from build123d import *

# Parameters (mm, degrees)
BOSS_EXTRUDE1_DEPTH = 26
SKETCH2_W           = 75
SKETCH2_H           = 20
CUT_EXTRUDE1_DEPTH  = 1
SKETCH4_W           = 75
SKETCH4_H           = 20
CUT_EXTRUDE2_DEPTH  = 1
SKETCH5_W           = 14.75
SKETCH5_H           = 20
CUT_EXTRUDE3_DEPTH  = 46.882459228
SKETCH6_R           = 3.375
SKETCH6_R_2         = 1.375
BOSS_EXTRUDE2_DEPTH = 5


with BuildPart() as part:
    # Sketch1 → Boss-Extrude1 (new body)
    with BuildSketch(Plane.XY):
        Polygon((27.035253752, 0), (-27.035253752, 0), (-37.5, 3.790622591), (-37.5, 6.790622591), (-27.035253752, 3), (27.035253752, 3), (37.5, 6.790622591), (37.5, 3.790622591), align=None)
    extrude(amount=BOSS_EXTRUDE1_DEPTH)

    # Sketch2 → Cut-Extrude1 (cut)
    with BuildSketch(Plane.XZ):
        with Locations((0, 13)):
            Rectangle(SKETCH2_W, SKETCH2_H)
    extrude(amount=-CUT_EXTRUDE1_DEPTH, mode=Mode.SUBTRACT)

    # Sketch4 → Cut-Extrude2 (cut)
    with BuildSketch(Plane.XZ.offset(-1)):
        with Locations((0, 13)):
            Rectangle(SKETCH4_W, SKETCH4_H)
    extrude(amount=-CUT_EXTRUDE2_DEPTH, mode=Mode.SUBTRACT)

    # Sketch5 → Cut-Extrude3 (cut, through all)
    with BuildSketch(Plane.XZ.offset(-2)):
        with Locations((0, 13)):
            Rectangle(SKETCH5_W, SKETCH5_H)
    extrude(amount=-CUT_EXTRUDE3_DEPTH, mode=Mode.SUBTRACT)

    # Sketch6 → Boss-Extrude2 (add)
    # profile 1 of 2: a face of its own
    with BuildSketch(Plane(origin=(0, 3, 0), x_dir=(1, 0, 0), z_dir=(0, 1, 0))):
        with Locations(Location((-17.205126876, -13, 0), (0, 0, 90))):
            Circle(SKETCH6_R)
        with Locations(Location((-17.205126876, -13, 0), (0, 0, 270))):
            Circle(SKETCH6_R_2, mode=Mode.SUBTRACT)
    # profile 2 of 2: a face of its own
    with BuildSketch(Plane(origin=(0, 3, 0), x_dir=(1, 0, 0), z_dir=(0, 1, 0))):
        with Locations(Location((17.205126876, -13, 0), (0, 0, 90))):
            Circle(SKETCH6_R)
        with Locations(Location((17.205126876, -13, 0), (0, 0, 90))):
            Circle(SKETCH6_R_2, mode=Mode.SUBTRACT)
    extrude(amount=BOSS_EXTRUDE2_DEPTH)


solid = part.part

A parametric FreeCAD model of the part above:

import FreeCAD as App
import Part
import Sketcher

V = App.Vector


def add_polygon(sketch, points):
    """Adds a closed chain of lines whose ends are joined by coincident constraints."""
    first, n = sketch.GeometryCount, len(points)
    for a, b in zip(points, points[1:] + points[:1]):
        sketch.addGeometry(Part.LineSegment(App.Vector(*a, 0), App.Vector(*b, 0)), False)
    for i in range(n):
        sketch.addConstraint(Sketcher.Constraint("Coincident", first + i, 2, first + (i + 1) % n, 1))

doc = App.newDocument("Part")
body = doc.addObject("PartDesign::Body", "Body")

sketch1 = body.newObject("Sketcher::SketchObject", "Sketch")
sketch1.AttachmentSupport = (doc.getObject("XY_Plane"), [""])
sketch1.MapMode = "FlatFace"
add_polygon(sketch1, [(-27.035254, 0), (27.035254, 0), (37.5, 3.790623), (37.5, 6.790623), (27.035254, 3), (-27.035254, 3), (-37.5, 6.790623), (-37.5, 3.790623)])
sketch1.addConstraint(Sketcher.Constraint("Horizontal", 0))
sketch1.addConstraint(Sketcher.Constraint("Vertical", 2))
sketch1.addConstraint(Sketcher.Constraint("Horizontal", 4))
sketch1.addConstraint(Sketcher.Constraint("Vertical", 6))
sketch1.addConstraint(Sketcher.Constraint("Symmetric", 0, 2, 7, 2, -1, 1))
sketch1.addConstraint(Sketcher.Constraint("Symmetric", 2, 2, 5, 2, -2))
sketch1.addConstraint(Sketcher.Constraint("Parallel", 1, 3))
sketch1.addConstraint(Sketcher.Constraint("Parallel", 5, 7))
sketch1.addConstraint(Sketcher.Constraint("Horizontal", 1, 2, 6, 2))
sketch1.addConstraint(Sketcher.Constraint("Vertical", 0, 2, 3, 2))
sketch1.addConstraint(Sketcher.Constraint("DistanceY", 2, 1, 2, 2, 3.0))
sketch1.addConstraint(Sketcher.Constraint("DistanceX", 5, 2, 2, 2, 75.0))
sketch1.addConstraint(Sketcher.Constraint("DistanceX", 0, 1, 0, 2, 54.070508))
sketch1.addConstraint(Sketcher.Constraint("Distance", 1, 11.130127))
pad1 = body.newObject("PartDesign::Pad", "Pad")
pad1.Profile = sketch1
pad1.Length = 26

sketch2 = body.newObject("Sketcher::SketchObject", "Sketch001")
sketch2.AttachmentSupport = (doc.getObject("XZ_Plane"), [""])
sketch2.MapMode = "FlatFace"
add_polygon(sketch2, [(-37.5, 23), (-37.5, 3), (37.5, 3), (37.5, 23)])
sketch2.addConstraint(Sketcher.Constraint("Vertical", 0))
sketch2.addConstraint(Sketcher.Constraint("Horizontal", 1))
sketch2.addConstraint(Sketcher.Constraint("Vertical", 2))
sketch2.addConstraint(Sketcher.Constraint("Horizontal", 3))
sketch2.addConstraint(Sketcher.Constraint("DistanceX", 1, 1, 1, 2, 75.0))
sketch2.addConstraint(Sketcher.Constraint("DistanceY", 0, 2, 0, 1, 20.0))
sketch2.addConstraint(Sketcher.Constraint("DistanceY", -1, 1, 0, 2, 3.0))
sketch2.addConstraint(Sketcher.Constraint("DistanceX", 0, 2, -1, 1, 37.5))
pocket1 = body.newObject("PartDesign::Pocket", "Pocket")
pocket1.Profile = sketch2
pocket1.Length = 1

sketch3 = body.newObject("Sketcher::SketchObject", "Sketch002")
sketch3.AttachmentSupport = (doc.getObject("XZ_Plane"), [""])
sketch3.MapMode = "FlatFace"
sketch3.AttachmentOffset = App.Placement(V(0, 0, -1), App.Rotation())
add_polygon(sketch3, [(-37.5, 23), (-37.5, 3), (37.5, 3), (37.5, 23)])
sketch3.addConstraint(Sketcher.Constraint("Vertical", 0))
sketch3.addConstraint(Sketcher.Constraint("Horizontal", 1))
sketch3.addConstraint(Sketcher.Constraint("Vertical", 2))
sketch3.addConstraint(Sketcher.Constraint("Horizontal", 3))
sketch3.addConstraint(Sketcher.Constraint("DistanceX", 1, 1, 1, 2, 75.0))
sketch3.addConstraint(Sketcher.Constraint("DistanceY", 0, 2, 0, 1, 20.0))
sketch3.addConstraint(Sketcher.Constraint("DistanceY", -1, 1, 0, 2, 3.0))
sketch3.addConstraint(Sketcher.Constraint("DistanceX", 0, 2, -1, 1, 37.5))
pocket2 = body.newObject("PartDesign::Pocket", "Pocket001")
pocket2.Profile = sketch3
pocket2.Length = 1

sketch4 = body.newObject("Sketcher::SketchObject", "Sketch003")
sketch4.AttachmentSupport = (doc.getObject("XZ_Plane"), [""])
sketch4.MapMode = "FlatFace"
sketch4.AttachmentOffset = App.Placement(V(0, 0, -2), App.Rotation())
add_polygon(sketch4, [(-7.375, 23), (-7.375, 3), (7.375, 3), (7.375, 23)])
sketch4.addConstraint(Sketcher.Constraint("Vertical", 0))
sketch4.addConstraint(Sketcher.Constraint("Horizontal", 1))
sketch4.addConstraint(Sketcher.Constraint("Vertical", 2))
sketch4.addConstraint(Sketcher.Constraint("Horizontal", 3))
sketch4.addConstraint(Sketcher.Constraint("DistanceY", 0, 2, 0, 1, 20.0))
sketch4.addConstraint(Sketcher.Constraint("DistanceY", -1, 1, 0, 2, 3.0))
sketch4.addConstraint(Sketcher.Constraint("DistanceX", 1, 1, 1, 2, 14.75))
sketch4.addConstraint(Sketcher.Constraint("DistanceX", 0, 2, -1, 1, 7.375))
pocket3 = body.newObject("PartDesign::Pocket", "Pocket002")
pocket3.Profile = sketch4
pocket3.Type = "ThroughAll"

sketch5 = body.newObject("Sketcher::SketchObject", "Sketch004")
sketch5.AttachmentSupport = (doc.getObject("XZ_Plane"), [""])
sketch5.MapMode = "FlatFace"
sketch5.AttachmentOffset = App.Placement(V(0, 0, -3), App.Rotation())
sketch5.addGeometry(Part.Circle(V(-17.205127, 13, 0), V(0, 0, 1), 3.375), False)
sketch5.addGeometry(Part.Circle(V(-17.205127, 13, 0), V(0, 0, 1), 1.375), False)
sketch5.addGeometry(Part.Circle(V(17.205127, 13, 0), V(0, 0, 1), 3.375), False)
sketch5.addGeometry(Part.Circle(V(17.205127, 13, 0), V(0, 0, 1), 1.375), False)
sketch5.addConstraint(Sketcher.Constraint("Coincident", 1, 3, 0, 3))
sketch5.addConstraint(Sketcher.Constraint("Coincident", 3, 3, 2, 3))
sketch5.addConstraint(Sketcher.Constraint("Equal", 0, 2))
sketch5.addConstraint(Sketcher.Constraint("Equal", 1, 3))
sketch5.addConstraint(Sketcher.Constraint("Symmetric", 0, 3, 2, 3, -2))
sketch5.addConstraint(Sketcher.Constraint("Diameter", 0, 6.75))
sketch5.addConstraint(Sketcher.Constraint("Diameter", 1, 2.75))
sketch5.addConstraint(Sketcher.Constraint("DistanceY", -1, 1, 0, 3, 13.0))
sketch5.addConstraint(Sketcher.Constraint("DistanceX", 0, 3, -1, 1, 17.205127))
pad2 = body.newObject("PartDesign::Pad", "Pad001")
pad2.Profile = sketch5
pad2.Length = 5
pad2.Reversed = True

doc.recompute()
